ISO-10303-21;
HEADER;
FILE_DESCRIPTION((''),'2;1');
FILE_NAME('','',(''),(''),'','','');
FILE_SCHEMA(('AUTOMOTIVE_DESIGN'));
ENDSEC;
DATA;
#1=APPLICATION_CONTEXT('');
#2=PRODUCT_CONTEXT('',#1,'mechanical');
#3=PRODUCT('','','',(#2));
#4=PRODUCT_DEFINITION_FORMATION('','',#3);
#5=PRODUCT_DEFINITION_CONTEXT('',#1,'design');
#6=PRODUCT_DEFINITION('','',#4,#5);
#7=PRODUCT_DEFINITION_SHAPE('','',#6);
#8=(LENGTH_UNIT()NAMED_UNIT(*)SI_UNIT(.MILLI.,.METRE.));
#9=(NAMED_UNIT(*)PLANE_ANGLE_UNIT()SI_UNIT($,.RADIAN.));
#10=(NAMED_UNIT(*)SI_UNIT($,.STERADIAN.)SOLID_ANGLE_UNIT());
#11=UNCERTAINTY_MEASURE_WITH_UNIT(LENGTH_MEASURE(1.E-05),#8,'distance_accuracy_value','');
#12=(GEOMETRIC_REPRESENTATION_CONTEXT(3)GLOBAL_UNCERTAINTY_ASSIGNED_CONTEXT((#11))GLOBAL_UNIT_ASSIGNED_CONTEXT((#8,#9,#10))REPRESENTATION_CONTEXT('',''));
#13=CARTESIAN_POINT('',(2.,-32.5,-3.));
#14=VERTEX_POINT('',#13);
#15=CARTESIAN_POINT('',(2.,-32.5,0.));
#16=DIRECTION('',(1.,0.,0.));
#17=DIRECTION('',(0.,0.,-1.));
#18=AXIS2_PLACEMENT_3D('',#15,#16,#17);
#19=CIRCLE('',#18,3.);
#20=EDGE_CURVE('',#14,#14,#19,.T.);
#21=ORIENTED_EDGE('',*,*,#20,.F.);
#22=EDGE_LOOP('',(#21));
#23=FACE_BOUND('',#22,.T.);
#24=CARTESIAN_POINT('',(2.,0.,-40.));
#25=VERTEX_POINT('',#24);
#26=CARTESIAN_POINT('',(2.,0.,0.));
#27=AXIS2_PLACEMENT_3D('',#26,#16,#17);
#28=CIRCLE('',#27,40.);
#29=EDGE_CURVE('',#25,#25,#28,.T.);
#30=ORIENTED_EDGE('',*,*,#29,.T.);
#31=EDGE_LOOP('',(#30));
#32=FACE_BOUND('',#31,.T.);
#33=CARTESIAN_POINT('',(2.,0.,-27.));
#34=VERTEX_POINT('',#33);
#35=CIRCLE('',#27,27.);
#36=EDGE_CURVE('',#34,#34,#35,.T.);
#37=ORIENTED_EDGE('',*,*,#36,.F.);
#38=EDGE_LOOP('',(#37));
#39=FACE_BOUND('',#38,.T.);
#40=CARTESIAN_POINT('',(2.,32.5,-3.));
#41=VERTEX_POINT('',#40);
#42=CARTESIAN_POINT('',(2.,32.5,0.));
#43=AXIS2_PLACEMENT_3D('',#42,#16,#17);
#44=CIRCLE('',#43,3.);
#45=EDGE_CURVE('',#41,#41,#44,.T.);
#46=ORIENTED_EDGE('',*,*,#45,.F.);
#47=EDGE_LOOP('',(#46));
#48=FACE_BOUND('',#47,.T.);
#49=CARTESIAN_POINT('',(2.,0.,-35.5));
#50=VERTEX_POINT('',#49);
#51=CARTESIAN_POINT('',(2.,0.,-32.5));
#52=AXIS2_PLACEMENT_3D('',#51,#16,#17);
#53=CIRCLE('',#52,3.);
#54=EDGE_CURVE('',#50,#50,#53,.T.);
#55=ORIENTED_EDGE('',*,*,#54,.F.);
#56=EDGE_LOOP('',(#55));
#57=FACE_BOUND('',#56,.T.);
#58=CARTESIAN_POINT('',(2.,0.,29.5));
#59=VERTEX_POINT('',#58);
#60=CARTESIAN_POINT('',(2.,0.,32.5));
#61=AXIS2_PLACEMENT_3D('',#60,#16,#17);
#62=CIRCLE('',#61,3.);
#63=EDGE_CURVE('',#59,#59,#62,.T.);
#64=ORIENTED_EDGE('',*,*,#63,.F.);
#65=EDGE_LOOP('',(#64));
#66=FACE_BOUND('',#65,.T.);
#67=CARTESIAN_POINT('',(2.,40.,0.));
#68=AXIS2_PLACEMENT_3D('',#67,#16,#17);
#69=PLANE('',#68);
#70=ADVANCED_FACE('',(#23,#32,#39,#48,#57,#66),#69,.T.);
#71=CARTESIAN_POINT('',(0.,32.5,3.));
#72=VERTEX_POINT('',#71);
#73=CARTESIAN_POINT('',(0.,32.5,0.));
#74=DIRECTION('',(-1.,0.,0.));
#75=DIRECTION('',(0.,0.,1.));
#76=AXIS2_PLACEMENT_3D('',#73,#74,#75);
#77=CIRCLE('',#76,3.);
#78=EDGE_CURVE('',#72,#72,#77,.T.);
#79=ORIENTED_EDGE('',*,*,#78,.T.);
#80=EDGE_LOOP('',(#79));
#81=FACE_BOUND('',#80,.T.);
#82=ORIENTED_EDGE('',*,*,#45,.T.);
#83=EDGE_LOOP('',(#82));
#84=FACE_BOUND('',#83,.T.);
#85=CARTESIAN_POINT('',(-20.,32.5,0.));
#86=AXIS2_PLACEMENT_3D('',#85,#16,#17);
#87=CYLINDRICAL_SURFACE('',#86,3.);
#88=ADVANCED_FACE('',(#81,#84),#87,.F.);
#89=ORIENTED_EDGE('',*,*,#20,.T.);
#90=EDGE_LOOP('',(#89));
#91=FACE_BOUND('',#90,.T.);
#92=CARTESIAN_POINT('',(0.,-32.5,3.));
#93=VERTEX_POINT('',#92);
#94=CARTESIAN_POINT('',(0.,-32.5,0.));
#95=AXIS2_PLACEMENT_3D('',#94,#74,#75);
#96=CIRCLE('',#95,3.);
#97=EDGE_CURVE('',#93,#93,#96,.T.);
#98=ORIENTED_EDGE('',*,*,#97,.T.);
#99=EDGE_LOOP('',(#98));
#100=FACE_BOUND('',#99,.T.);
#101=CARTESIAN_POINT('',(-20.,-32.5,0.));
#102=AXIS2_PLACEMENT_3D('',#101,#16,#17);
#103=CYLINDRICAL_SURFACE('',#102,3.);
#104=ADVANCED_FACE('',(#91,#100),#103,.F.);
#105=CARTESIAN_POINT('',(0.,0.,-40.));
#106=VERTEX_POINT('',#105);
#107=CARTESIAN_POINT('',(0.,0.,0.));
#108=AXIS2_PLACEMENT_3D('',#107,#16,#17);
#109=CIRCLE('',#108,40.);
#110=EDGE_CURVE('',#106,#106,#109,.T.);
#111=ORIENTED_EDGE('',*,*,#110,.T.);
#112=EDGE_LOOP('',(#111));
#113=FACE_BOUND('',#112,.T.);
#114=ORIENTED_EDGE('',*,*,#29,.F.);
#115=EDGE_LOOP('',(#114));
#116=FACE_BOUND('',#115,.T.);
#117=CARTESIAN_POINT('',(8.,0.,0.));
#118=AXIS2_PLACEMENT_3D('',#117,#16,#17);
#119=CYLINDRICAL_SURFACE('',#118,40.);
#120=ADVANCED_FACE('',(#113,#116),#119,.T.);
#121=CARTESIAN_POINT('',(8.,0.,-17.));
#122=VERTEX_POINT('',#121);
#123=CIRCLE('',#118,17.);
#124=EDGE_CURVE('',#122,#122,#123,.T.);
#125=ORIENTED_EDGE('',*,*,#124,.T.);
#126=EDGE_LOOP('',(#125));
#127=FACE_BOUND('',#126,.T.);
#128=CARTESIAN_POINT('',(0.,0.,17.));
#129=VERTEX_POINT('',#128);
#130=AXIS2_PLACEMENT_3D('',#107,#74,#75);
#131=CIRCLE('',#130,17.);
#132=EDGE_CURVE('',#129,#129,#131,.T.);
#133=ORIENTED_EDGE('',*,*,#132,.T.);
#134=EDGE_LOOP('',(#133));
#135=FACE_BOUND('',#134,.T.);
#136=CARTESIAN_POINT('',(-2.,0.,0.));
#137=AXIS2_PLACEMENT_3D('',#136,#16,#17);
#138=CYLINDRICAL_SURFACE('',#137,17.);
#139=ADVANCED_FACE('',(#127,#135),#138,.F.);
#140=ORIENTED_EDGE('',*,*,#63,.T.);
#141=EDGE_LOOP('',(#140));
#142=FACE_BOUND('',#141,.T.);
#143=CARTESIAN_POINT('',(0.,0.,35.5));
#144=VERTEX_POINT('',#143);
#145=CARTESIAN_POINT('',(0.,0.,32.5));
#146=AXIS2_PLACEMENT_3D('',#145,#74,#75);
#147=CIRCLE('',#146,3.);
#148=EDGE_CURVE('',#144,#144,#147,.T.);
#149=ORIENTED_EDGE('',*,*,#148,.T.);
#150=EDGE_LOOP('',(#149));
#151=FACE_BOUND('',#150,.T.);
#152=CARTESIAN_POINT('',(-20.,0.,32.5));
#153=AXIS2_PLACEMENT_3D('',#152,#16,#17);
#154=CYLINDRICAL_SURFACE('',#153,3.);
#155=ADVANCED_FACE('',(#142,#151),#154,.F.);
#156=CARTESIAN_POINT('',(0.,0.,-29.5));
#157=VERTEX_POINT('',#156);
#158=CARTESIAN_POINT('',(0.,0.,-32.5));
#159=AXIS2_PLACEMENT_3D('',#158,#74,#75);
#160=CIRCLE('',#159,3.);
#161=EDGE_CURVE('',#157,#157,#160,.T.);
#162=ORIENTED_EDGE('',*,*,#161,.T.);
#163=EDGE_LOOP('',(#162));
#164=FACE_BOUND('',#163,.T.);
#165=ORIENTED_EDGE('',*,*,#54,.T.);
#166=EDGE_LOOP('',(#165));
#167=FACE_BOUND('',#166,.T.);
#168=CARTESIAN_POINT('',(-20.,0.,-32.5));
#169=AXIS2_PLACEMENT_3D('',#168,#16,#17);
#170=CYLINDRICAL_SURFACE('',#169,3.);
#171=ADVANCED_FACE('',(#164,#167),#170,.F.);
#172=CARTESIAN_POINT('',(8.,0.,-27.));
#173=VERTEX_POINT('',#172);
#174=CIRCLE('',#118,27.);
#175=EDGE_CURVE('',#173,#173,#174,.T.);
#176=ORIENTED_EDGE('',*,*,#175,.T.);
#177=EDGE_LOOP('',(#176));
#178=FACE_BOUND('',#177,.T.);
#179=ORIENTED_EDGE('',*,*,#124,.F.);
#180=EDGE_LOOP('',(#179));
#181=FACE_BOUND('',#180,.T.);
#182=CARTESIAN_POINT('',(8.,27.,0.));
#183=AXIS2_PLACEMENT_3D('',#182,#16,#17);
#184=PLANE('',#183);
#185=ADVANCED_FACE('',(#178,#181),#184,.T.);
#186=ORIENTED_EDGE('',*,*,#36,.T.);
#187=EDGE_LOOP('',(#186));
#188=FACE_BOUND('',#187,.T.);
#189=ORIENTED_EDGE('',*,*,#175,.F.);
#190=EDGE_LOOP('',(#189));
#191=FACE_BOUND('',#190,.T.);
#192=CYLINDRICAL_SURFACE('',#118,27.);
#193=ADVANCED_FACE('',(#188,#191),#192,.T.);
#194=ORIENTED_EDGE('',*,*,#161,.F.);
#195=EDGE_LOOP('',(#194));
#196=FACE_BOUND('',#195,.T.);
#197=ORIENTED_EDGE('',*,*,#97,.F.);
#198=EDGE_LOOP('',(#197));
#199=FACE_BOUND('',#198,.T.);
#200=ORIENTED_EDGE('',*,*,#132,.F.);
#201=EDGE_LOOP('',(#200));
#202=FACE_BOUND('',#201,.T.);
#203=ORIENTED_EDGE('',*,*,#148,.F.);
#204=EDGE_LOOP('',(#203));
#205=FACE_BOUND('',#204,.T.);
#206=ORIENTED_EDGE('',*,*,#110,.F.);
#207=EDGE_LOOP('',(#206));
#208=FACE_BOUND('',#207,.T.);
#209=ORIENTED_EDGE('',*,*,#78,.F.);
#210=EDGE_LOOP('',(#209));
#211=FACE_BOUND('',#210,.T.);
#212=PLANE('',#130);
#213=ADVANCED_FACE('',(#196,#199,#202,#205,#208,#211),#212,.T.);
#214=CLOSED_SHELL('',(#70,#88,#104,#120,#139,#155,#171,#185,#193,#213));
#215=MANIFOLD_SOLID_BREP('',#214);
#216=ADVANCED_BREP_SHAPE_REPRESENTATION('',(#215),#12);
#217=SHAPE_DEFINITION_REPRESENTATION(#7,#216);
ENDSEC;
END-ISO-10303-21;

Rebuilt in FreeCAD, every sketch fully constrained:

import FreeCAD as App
import Part
import Sketcher

V = App.Vector
Q = App.Units.Quantity

doc = App.newDocument("Part")
body = doc.addObject("PartDesign::Body", "Body")

# Sketch on XY plane
sketch1 = body.newObject("Sketcher::SketchObject", "Sketch")
sketch1.AttachmentSupport = (doc.getObject("XY_Plane"), [""])
sketch1.MapMode = "FlatFace"
sketch1.addGeometry([
    Part.LineSegment(V(0, 40, 0), V(0, 0, 0)),  # 0
    Part.LineSegment(V(0, 0, 0), V(8, 0, 0)),  # 1
    Part.LineSegment(V(8, 0, 0), V(8, 27, 0)),  # 2
    Part.LineSegment(V(8, 27, 0), V(2, 27, 0)),  # 3
    Part.LineSegment(V(2, 27, 0), V(2, 40, 0)),  # 4
    Part.LineSegment(V(2, 40, 0), V(0, 40, 0)),  # 5
], False)
sketch1.addConstraint([
    Sketcher.Constraint("Coincident", 0, 2, 1, 1),
    Sketcher.Constraint("Coincident", 1, 2, 2, 1),
    Sketcher.Constraint("Coincident", 2, 2, 3, 1),
    Sketcher.Constraint("Coincident", 3, 2, 4, 1),
    Sketcher.Constraint("Coincident", 4, 2, 5, 1),
    Sketcher.Constraint("Coincident", 5, 2, 0, 1),
    Sketcher.Constraint("Vertical", 0),
    Sketcher.Constraint("Horizontal", 1),
    Sketcher.Constraint("Vertical", 2),
    Sketcher.Constraint("Horizontal", 3),
    Sketcher.Constraint("Vertical", 4),
    Sketcher.Constraint("Horizontal", 5),
    Sketcher.Constraint("Coincident", 0, 2, -1, 1),
    Sketcher.Constraint("DistanceX", 1, 1, 1, 2, Q("8 mm")),
    Sketcher.Constraint("DistanceX", 3, 2, 3, 1, Q("6 mm")),
    Sketcher.Constraint("DistanceY", 0, 2, 0, 1, Q("40 mm")),
    Sketcher.Constraint("DistanceY", 2, 1, 2, 2, Q("27 mm")),
])
revolution = body.newObject("PartDesign::Revolution", "Revolution")
revolution.Profile = sketch1
revolution.ReferenceAxis = (sketch1, ["H_Axis"])
revolution.Angle = 360

# Sketch on YZ plane
sketch2 = body.newObject("Sketcher::SketchObject", "Sketch001")
sketch2.AttachmentSupport = (doc.getObject("YZ_Plane"), [""])
sketch2.MapMode = "FlatFace"
sketch2.AttachmentOffset = App.Placement(V(0, 0, 8), App.Rotation())
sketch2.addGeometry(Part.Circle(V(0, 0, 0), V(0, 0, 1), 17), False)
sketch2.addConstraint([
    Sketcher.Constraint("Coincident", 0, 3, -1, 1),
    Sketcher.Constraint("Diameter", 0, Q("34 mm")),
])
pocket1 = body.newObject("PartDesign::Pocket", "Pocket")
pocket1.Profile = sketch2
pocket1.Length = 10

# Sketch on YZ plane
sketch3 = body.newObject("Sketcher::SketchObject", "Sketch002")
sketch3.AttachmentSupport = (doc.getObject("YZ_Plane"), [""])
sketch3.MapMode = "FlatFace"
sketch3.AttachmentOffset = App.Placement(V(0, 0, 8), App.Rotation())
sketch3.addGeometry([
    Part.Circle(V(-32.5, 0, 0), V(0, 0, 1), 3),
    Part.Circle(V(0, -32.5, 0), V(0, 0, 1), 3),
    Part.Circle(V(32.5, 0, 0), V(0, 0, 1), 3),
    Part.Circle(V(0, 32.5, 0), V(0, 0, 1), 3),
], False)
sketch3.addConstraint([
    Sketcher.Constraint("Equal", 0, 1),
    Sketcher.Constraint("Equal", 1, 2),
    Sketcher.Constraint("Equal", 2, 3),
    Sketcher.Constraint("Symmetric", 0, 3, 2, 3, -1, 1),
    Sketcher.Constraint("Symmetric", 1, 3, 3, 3, -1, 1),
    Sketcher.Constraint("PointOnObject", 0, 3, -1),
    Sketcher.Constraint("PointOnObject", 1, 3, -2),
    Sketcher.Constraint("Diameter", 0, Q("6 mm")),
    Sketcher.Constraint("DistanceX", 0, 3, 2, 3, Q("65 mm")),
    Sketcher.Constraint("DistanceY", 1, 3, 3, 3, Q("65 mm")),
])
pocket2 = body.newObject("PartDesign::Pocket", "Pocket001")
pocket2.Profile = sketch3
pocket2.Length = 28

doc.recompute()
